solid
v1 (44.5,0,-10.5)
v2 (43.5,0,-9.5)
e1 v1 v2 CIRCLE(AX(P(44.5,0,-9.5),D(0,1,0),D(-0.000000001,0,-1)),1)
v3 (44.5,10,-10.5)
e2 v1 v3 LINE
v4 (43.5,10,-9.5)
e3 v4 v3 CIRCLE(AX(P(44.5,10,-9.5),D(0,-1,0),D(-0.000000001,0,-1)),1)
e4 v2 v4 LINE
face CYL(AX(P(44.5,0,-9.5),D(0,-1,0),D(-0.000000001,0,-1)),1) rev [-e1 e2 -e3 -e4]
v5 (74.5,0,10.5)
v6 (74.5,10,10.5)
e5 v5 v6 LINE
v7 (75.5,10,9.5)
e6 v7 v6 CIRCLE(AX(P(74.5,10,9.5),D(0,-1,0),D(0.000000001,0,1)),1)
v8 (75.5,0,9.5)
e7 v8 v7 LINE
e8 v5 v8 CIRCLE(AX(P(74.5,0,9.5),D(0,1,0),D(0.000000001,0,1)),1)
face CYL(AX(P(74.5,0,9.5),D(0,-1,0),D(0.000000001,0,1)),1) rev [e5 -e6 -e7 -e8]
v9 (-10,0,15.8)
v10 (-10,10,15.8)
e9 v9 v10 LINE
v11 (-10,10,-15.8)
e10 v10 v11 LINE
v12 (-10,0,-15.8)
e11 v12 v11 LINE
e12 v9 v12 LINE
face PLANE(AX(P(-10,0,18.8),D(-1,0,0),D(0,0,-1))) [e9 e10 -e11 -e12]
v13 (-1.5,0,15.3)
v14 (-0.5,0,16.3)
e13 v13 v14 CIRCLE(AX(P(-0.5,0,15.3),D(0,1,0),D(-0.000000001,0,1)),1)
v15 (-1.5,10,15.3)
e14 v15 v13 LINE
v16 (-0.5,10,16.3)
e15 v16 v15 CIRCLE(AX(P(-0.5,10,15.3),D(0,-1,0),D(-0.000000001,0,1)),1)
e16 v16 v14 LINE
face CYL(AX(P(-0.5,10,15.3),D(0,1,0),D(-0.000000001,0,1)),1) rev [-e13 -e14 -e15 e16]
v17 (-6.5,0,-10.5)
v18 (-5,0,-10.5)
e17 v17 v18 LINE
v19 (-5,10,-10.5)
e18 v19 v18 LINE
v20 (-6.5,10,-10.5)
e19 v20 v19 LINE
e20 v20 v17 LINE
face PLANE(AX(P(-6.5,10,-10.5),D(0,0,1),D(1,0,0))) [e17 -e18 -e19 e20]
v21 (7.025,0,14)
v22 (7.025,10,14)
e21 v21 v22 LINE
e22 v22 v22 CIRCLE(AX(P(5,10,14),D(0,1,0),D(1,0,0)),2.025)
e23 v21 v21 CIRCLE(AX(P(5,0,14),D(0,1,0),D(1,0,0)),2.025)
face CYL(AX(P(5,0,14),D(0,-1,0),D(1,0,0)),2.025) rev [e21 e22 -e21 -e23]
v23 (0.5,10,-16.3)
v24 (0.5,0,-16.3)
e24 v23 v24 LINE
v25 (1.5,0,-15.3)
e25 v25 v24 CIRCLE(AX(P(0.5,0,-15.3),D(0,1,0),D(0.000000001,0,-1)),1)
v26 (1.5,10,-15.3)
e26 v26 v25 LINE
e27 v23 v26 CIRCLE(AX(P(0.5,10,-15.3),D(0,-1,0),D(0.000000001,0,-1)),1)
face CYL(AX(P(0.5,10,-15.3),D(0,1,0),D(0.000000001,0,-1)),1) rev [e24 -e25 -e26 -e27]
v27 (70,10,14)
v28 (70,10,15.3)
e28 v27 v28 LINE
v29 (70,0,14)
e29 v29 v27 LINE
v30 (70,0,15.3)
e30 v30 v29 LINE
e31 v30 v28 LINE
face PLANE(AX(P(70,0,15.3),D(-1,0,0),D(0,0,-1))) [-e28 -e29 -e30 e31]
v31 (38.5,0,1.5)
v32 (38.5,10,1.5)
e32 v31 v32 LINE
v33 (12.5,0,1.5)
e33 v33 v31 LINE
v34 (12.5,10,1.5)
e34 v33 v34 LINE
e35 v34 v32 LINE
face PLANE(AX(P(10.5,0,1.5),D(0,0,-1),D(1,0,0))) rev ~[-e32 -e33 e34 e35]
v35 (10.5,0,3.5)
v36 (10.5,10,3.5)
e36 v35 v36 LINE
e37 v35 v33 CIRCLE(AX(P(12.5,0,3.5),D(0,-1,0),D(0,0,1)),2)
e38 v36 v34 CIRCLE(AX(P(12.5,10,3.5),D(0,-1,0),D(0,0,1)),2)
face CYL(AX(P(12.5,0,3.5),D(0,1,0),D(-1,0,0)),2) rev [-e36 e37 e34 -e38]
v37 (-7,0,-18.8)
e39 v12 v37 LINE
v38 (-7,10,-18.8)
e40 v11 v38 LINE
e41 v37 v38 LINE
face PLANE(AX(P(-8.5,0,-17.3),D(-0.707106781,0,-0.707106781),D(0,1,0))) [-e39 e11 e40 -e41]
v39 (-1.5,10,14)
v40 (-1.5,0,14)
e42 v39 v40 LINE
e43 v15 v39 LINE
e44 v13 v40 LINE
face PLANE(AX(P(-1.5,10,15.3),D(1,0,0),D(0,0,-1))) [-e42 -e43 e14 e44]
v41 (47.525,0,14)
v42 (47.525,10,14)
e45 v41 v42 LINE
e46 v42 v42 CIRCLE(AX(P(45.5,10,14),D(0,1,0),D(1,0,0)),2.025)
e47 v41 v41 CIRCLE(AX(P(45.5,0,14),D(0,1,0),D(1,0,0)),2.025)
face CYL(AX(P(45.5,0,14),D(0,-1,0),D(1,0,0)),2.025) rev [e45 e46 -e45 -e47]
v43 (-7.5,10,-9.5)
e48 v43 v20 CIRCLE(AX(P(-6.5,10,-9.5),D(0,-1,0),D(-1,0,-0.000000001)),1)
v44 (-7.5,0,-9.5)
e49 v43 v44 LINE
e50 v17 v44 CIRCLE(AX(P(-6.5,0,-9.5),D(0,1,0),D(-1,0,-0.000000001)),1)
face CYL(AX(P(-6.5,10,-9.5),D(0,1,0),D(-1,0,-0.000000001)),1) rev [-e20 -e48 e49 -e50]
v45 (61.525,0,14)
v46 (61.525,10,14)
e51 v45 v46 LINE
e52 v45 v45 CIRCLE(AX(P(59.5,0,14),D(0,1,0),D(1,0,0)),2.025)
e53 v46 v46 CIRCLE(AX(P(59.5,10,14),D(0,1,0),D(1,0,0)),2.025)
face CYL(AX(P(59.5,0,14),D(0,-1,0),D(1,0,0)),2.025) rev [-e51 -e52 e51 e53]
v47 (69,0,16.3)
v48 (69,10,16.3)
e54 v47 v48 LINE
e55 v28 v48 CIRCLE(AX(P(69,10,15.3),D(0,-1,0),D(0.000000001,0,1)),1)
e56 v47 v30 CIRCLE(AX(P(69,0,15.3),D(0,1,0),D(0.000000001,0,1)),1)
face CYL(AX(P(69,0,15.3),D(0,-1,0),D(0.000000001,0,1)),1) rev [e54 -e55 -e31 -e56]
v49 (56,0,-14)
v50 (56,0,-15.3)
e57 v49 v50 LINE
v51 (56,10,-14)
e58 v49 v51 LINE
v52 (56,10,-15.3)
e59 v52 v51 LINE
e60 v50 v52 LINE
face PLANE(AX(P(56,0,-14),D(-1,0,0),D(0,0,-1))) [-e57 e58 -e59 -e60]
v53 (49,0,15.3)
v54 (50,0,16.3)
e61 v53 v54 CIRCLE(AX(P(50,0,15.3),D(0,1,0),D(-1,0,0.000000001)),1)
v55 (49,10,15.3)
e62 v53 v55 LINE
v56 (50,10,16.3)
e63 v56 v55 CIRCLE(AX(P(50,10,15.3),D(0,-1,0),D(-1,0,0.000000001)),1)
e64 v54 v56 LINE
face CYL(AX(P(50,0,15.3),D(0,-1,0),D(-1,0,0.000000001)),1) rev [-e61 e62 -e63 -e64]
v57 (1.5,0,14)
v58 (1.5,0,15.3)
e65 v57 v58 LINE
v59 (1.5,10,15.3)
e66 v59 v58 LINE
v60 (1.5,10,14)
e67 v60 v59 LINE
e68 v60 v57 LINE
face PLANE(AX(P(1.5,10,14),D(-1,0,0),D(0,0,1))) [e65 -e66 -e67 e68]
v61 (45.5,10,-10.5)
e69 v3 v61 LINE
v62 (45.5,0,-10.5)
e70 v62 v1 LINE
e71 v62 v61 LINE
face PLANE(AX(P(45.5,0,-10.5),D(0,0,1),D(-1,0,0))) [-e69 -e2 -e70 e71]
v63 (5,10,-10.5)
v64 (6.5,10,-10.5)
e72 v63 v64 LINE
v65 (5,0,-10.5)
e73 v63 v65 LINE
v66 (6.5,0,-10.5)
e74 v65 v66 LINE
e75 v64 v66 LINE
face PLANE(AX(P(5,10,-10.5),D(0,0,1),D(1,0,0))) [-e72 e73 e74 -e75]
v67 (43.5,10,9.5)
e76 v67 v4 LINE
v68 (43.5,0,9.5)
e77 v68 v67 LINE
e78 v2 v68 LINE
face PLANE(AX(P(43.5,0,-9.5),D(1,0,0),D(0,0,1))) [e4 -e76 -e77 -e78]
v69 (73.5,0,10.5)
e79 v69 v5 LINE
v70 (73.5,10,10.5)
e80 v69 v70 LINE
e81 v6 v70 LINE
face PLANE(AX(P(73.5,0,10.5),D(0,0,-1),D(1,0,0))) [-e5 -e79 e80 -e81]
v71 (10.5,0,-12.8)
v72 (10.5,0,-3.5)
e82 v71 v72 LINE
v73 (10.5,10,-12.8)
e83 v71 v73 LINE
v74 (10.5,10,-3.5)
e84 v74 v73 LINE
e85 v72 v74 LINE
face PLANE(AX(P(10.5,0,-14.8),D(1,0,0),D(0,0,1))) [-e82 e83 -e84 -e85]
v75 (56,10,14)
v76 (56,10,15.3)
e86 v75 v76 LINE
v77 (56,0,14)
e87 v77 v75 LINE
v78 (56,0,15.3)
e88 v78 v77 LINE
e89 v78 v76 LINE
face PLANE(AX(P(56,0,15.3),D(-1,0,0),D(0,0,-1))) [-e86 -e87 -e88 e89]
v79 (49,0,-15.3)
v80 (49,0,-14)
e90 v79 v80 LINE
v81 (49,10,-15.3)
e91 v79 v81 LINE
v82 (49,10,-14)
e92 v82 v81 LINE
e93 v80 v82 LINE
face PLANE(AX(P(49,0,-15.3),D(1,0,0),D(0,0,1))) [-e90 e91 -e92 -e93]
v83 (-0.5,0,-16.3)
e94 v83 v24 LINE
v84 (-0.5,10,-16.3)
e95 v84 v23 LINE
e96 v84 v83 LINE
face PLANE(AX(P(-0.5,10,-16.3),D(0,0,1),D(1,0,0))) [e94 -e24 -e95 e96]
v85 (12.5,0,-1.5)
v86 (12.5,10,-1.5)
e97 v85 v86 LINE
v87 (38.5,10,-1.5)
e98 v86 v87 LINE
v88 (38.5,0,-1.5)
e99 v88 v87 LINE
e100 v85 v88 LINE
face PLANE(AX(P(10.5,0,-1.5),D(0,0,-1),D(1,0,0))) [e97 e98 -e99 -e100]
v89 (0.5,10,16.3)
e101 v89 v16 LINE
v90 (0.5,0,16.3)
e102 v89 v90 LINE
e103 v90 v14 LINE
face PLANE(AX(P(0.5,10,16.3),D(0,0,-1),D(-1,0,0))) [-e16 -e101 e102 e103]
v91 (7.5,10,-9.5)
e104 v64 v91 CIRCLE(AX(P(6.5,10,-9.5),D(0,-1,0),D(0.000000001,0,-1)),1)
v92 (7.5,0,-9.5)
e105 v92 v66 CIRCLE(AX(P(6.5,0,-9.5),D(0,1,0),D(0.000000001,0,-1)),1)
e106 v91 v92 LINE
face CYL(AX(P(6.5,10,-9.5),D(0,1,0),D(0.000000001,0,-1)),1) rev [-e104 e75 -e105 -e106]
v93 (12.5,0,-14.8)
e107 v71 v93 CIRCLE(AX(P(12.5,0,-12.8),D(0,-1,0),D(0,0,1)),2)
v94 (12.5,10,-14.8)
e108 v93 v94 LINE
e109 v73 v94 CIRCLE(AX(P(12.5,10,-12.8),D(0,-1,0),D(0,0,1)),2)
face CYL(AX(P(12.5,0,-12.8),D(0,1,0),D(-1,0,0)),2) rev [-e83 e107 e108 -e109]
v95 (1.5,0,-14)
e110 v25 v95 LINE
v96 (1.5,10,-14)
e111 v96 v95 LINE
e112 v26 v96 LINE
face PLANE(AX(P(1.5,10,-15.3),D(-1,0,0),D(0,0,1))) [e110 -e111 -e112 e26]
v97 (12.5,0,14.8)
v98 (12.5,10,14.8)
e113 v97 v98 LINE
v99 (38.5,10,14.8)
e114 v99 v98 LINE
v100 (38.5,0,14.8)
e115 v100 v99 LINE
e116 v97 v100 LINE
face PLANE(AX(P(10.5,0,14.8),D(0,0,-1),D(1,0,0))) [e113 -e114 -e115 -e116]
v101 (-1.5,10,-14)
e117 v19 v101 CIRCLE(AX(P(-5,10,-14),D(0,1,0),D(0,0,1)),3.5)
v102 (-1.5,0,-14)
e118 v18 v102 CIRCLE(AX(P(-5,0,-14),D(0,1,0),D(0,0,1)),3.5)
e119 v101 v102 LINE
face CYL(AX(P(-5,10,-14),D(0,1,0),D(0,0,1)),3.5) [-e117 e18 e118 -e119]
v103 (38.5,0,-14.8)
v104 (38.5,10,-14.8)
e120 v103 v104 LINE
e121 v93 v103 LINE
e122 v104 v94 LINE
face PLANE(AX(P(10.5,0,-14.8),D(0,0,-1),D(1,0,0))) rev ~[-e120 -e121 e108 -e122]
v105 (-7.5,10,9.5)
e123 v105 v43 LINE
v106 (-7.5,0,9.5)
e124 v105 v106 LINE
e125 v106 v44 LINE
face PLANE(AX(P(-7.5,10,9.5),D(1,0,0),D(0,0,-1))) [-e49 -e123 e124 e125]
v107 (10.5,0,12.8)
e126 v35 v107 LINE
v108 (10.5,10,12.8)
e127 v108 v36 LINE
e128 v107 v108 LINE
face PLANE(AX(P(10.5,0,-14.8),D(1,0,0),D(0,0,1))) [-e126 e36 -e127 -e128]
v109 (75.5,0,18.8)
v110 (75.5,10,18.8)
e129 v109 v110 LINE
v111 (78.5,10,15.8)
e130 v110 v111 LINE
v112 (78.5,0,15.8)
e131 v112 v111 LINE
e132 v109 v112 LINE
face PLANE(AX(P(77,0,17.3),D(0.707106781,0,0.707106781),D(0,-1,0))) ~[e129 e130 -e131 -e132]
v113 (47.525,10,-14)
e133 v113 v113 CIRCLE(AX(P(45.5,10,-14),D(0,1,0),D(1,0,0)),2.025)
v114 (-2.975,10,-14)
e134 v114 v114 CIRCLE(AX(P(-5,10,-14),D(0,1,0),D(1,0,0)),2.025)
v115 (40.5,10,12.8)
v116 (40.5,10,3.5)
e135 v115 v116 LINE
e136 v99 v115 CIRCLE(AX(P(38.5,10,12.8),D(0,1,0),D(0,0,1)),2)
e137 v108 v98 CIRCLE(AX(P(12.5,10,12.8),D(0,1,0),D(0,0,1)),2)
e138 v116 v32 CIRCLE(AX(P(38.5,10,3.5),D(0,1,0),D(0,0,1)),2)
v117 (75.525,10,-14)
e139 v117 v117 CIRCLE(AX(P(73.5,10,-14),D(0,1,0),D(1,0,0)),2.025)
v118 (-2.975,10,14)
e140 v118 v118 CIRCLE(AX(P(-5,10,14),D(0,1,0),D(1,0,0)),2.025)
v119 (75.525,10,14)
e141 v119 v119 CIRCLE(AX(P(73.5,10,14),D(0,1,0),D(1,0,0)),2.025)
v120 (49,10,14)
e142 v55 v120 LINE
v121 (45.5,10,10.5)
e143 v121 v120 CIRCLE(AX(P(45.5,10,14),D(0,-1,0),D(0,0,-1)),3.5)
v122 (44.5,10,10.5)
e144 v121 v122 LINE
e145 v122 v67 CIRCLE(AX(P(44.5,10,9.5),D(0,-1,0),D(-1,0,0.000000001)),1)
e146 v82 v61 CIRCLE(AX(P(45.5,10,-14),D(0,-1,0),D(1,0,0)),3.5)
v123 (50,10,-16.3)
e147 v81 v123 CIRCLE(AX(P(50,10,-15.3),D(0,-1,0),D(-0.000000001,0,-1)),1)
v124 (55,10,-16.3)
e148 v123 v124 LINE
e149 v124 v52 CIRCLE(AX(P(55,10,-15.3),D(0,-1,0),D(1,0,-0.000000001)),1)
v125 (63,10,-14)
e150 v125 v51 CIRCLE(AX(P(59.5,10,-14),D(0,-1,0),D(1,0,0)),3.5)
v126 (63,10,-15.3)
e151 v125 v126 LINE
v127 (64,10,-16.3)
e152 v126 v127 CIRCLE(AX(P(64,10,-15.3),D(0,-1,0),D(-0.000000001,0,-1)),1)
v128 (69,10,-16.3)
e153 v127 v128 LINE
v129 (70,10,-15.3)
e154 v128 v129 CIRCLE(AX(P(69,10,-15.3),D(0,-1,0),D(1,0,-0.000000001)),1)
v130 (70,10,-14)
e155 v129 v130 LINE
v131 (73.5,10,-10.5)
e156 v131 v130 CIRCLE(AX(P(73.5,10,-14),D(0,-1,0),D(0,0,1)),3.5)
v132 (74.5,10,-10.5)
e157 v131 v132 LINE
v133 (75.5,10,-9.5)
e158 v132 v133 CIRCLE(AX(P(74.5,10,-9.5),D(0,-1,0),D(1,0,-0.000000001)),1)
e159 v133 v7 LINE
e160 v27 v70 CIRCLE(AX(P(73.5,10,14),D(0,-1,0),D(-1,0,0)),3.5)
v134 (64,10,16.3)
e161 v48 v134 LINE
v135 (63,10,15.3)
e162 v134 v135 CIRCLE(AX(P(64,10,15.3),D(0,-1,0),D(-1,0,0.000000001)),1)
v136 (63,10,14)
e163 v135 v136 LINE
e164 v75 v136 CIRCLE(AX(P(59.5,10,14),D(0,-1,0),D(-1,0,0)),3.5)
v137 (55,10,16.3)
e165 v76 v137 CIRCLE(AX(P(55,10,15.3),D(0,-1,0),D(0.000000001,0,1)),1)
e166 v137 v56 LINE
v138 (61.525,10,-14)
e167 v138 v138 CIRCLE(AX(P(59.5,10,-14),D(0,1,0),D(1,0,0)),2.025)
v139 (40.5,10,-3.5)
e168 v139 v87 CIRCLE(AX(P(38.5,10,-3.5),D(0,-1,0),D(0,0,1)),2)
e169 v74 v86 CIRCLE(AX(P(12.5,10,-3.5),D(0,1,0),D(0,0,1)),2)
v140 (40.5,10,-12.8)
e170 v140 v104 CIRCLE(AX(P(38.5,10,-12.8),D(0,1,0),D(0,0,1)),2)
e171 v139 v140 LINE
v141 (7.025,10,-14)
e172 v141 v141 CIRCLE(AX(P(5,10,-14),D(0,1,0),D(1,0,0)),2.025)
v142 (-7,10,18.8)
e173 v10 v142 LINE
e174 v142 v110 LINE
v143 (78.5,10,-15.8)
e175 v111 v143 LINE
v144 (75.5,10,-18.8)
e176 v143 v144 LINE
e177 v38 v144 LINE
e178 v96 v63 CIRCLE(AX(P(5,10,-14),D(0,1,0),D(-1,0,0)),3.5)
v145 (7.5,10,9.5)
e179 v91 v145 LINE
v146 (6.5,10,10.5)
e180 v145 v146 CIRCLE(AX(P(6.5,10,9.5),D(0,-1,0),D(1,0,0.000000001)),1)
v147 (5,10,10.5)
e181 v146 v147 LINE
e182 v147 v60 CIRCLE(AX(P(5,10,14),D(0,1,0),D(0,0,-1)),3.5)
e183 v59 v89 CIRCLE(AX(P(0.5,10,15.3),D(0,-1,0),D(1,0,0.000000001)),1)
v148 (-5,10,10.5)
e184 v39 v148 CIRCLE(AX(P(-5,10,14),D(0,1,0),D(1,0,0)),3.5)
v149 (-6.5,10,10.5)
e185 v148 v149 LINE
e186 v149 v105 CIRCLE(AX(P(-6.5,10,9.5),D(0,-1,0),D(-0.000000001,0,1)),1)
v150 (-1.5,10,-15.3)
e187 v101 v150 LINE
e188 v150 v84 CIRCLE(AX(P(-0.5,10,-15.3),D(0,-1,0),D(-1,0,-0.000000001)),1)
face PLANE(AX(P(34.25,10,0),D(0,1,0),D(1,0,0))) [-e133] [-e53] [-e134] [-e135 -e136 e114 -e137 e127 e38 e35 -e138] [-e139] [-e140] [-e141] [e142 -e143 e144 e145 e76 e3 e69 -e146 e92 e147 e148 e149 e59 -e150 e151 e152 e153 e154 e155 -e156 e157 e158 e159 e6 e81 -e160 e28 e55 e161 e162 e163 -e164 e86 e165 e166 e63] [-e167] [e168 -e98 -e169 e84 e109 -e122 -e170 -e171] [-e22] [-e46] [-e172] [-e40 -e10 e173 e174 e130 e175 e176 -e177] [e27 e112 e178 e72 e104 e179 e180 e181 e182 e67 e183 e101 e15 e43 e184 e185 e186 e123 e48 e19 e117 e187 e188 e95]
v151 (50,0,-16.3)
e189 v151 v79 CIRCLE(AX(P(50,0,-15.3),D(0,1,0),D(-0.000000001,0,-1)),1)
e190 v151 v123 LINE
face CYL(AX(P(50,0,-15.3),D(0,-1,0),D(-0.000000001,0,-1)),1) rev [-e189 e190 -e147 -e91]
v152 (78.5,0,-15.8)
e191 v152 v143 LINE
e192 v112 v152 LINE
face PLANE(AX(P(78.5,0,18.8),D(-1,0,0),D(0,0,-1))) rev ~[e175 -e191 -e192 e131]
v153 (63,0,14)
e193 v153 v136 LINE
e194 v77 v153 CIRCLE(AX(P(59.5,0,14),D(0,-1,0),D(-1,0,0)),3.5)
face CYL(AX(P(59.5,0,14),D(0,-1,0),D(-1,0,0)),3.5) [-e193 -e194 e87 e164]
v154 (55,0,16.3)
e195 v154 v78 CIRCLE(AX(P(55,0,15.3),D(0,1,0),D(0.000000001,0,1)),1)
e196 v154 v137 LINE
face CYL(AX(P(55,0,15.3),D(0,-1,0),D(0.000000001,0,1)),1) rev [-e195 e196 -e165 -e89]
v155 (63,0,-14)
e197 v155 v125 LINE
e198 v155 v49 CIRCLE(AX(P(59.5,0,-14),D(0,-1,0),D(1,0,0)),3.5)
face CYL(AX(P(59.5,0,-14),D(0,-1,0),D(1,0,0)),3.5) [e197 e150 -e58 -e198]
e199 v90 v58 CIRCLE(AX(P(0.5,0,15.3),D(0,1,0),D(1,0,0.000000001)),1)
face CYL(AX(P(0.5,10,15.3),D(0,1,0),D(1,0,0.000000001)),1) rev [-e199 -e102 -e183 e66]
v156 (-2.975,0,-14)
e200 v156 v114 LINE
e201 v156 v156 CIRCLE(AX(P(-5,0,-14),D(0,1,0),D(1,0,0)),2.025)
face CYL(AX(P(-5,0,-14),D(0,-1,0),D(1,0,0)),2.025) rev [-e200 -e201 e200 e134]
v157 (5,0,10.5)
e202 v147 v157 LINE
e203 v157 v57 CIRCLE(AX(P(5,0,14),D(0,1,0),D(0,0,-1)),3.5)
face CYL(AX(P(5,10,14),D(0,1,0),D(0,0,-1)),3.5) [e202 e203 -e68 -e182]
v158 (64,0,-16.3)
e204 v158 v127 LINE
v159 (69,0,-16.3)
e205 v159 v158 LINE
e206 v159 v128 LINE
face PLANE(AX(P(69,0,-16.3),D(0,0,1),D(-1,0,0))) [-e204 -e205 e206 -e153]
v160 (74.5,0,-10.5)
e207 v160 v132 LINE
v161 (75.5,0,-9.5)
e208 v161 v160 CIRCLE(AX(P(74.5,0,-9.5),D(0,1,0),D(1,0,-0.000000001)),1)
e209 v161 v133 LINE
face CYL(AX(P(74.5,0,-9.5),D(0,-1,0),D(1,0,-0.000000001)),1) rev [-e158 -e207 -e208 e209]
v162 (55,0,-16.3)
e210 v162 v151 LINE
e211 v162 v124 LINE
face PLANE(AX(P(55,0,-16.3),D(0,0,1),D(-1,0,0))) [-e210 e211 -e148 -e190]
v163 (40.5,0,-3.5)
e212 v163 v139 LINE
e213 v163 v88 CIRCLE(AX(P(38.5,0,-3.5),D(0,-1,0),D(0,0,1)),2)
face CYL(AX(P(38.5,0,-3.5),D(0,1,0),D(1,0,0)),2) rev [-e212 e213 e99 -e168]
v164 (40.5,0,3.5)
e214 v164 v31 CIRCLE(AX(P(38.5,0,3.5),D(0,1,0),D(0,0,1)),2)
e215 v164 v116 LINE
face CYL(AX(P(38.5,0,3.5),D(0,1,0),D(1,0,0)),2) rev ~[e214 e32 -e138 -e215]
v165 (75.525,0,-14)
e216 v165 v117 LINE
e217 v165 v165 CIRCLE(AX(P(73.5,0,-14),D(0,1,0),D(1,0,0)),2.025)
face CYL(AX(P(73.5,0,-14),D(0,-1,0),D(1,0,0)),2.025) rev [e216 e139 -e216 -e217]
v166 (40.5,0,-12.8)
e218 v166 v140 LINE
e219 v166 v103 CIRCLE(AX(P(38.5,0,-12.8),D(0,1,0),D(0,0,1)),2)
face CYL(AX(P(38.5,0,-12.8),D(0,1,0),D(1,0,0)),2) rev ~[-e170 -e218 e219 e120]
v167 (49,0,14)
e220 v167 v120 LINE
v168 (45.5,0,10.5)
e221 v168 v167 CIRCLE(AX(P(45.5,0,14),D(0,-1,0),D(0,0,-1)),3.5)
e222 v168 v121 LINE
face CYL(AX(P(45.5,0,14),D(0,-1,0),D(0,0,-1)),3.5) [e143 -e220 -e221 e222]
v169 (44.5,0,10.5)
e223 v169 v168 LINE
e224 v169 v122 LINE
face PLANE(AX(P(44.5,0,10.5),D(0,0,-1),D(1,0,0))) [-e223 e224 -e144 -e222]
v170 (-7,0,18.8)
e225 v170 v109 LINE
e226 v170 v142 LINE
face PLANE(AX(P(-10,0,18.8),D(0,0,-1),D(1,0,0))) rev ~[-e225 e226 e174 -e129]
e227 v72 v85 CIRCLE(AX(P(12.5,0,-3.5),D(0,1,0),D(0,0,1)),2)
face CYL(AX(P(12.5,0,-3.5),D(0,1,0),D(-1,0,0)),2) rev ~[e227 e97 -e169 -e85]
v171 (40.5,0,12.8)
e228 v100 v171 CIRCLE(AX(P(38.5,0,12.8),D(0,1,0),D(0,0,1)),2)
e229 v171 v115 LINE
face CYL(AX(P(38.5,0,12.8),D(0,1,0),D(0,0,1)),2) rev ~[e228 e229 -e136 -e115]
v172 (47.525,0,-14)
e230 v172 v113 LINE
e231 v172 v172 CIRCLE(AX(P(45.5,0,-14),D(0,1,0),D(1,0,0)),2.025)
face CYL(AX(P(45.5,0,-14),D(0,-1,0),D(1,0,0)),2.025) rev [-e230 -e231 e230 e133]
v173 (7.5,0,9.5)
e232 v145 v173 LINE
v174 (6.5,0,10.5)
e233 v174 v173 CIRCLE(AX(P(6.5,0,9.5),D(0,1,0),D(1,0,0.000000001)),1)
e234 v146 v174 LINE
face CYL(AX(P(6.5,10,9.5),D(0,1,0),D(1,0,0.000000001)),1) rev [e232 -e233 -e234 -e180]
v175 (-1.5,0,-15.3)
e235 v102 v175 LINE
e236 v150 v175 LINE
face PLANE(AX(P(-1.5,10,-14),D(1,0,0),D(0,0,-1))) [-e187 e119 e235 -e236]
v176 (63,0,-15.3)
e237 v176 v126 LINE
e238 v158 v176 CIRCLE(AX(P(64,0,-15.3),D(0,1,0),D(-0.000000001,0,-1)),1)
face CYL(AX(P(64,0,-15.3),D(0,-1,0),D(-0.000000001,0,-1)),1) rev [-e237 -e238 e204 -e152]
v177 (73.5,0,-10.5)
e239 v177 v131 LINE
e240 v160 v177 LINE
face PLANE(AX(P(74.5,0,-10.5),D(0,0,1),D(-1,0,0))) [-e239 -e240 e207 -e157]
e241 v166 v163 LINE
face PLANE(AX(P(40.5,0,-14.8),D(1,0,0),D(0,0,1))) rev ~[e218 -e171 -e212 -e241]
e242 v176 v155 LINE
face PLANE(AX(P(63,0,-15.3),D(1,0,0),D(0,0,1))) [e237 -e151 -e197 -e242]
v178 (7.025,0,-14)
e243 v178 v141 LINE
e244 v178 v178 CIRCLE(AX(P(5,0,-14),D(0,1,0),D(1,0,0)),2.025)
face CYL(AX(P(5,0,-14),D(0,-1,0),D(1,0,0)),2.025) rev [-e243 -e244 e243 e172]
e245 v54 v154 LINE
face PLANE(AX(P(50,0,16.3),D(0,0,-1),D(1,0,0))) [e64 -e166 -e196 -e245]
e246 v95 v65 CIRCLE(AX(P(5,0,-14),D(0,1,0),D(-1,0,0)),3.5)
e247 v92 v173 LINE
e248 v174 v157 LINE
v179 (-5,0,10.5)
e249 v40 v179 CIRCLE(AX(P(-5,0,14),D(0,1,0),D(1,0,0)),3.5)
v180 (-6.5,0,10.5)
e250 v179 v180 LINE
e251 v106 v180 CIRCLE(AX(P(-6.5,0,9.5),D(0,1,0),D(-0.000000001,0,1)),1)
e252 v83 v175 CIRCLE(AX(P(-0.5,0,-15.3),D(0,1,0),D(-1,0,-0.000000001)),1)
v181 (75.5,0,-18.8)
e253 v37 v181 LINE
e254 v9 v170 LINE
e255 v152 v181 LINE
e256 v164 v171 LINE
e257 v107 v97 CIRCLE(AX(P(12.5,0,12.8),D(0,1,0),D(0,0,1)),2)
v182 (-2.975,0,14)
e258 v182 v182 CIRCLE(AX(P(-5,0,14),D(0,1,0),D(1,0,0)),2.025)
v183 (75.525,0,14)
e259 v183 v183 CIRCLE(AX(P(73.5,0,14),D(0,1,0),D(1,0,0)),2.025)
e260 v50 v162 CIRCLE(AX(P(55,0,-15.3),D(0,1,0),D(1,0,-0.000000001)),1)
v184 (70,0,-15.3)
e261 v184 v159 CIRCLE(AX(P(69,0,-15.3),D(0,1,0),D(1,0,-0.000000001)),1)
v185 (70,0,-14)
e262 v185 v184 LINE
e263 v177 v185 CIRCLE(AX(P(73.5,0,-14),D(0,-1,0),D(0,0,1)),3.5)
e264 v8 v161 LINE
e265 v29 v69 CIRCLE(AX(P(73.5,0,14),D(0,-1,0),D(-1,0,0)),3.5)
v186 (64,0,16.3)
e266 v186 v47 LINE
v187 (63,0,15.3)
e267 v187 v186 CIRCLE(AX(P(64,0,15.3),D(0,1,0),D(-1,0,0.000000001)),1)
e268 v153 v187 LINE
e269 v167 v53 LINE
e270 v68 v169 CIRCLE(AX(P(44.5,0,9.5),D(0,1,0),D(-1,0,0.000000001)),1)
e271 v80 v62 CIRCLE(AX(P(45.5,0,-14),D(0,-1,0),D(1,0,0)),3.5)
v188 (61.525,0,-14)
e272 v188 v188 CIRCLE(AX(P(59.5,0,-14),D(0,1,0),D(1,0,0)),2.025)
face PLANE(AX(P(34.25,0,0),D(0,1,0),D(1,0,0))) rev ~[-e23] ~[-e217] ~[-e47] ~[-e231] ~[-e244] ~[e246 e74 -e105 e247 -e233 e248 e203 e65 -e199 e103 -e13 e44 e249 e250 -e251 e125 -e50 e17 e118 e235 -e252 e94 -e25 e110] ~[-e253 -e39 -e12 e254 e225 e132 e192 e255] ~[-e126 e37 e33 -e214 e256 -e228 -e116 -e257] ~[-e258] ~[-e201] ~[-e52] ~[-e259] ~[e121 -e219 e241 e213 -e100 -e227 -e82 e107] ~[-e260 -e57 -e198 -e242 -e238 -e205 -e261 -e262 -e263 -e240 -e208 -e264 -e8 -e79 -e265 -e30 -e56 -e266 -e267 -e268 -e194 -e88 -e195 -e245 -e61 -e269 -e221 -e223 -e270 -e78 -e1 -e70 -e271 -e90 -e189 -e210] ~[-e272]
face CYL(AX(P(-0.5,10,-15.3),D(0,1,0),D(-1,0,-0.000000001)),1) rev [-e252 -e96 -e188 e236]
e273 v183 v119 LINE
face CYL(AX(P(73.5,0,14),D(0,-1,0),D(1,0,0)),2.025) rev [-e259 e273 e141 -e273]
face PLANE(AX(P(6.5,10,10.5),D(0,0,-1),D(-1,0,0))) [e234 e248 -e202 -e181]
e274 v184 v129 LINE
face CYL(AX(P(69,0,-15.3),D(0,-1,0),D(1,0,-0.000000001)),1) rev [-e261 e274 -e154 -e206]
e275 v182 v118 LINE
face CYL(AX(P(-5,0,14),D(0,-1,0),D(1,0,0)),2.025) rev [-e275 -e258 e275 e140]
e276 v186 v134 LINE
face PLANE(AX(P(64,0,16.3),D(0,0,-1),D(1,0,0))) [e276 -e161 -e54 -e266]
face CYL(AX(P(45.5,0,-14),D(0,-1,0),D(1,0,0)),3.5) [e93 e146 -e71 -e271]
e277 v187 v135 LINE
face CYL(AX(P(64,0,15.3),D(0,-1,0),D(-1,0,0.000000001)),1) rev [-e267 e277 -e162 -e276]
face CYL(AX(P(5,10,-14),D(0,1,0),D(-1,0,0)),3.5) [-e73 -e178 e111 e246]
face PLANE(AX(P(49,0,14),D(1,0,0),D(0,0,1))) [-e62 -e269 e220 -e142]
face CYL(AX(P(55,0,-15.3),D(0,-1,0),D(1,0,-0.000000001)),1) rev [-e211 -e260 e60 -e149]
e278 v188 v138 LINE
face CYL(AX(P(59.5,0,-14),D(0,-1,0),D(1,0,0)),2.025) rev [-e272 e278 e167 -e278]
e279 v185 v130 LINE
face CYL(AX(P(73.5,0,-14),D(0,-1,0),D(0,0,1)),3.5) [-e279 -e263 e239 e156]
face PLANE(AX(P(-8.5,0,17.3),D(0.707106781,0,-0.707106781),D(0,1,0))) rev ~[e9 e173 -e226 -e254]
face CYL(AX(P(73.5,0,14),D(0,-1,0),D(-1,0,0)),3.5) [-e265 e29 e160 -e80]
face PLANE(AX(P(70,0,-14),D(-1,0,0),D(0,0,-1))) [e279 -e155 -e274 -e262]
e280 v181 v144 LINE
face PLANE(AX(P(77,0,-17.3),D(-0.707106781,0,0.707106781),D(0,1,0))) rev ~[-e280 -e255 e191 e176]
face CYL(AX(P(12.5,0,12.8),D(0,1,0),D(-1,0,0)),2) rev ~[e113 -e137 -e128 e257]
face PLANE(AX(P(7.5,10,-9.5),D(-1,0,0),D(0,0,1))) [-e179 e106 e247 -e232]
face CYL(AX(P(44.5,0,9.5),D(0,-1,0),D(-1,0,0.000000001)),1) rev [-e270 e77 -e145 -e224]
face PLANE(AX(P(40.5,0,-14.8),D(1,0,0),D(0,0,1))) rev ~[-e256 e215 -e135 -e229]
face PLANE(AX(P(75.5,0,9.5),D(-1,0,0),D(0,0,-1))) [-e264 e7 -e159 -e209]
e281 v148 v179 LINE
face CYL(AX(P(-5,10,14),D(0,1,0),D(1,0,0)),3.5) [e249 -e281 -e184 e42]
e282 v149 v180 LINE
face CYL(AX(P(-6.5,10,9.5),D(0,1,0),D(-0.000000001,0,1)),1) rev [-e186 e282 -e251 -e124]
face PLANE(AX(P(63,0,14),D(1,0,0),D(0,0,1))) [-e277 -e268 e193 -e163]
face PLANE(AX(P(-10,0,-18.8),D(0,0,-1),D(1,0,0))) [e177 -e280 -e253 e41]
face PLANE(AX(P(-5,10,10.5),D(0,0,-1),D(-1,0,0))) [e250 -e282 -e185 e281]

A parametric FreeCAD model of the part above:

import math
import FreeCAD as App
import Part
import Sketcher


def edges_at(feature, points):
    """Names of the edges that pass closest to the given points."""
    edges = feature.Shape.Edges
    near = lambda p: min(range(len(edges)), key=lambda i: edges[i].distToShape(Part.Vertex(*p))[0])
    return sorted({f"Edge{near(p) + 1}" for p in points})

doc = App.newDocument("Part")
body = doc.addObject("PartDesign::Body", "Body")

sketch1 = body.newObject("Sketcher::SketchObject", "Sketch")
sketch1.AttachmentSupport = (doc.getObject("XZ_Plane"), [""])
sketch1.MapMode = "FlatFace"
sketch1.addGeometry(Part.LineSegment(App.Vector(-10, -18.8, 0), App.Vector(-10, 18.8, 0)), False)
sketch1.addGeometry(Part.LineSegment(App.Vector(-10, 18.8, 0), App.Vector(78.5, 18.8, 0)), False)
sketch1.addGeometry(Part.LineSegment(App.Vector(78.5, 18.8, 0), App.Vector(78.5, -18.8, 0)), False)
sketch1.addGeometry(Part.LineSegment(App.Vector(78.5, -18.8, 0), App.Vector(-10, -18.8, 0)), False)
sketch1.addGeometry(Part.Circle(App.Vector(-5, 14, 0), App.Vector(0, 0, 1), 2.025), False)
sketch1.addGeometry(Part.Circle(App.Vector(5, 14, 0), App.Vector(0, 0, 1), 2.025), False)
sketch1.addGeometry(Part.Circle(App.Vector(45.5, 14, 0), App.Vector(0, 0, 1), 2.025), False)
sketch1.addGeometry(Part.Circle(App.Vector(59.5, 14, 0), App.Vector(0, 0, 1), 2.025), False)
sketch1.addGeometry(Part.Circle(App.Vector(73.5, 14, 0), App.Vector(0, 0, 1), 2.025), False)
sketch1.addGeometry(Part.Circle(App.Vector(-5, -14, 0), App.Vector(0, 0, 1), 2.025), False)
sketch1.addGeometry(Part.Circle(App.Vector(5, -14, 0), App.Vector(0, 0, 1), 2.025), False)
sketch1.addGeometry(Part.Circle(App.Vector(45.5, -14, 0), App.Vector(0, 0, 1), 2.025), False)
sketch1.addGeometry(Part.Circle(App.Vector(59.5, -14, 0), App.Vector(0, 0, 1), 2.025), False)
sketch1.addGeometry(Part.Circle(App.Vector(73.5, -14, 0), App.Vector(0, 0, 1), 2.025), False)
sketch1.addConstraint(Sketcher.Constraint("Coincident", 0, 2, 1, 1))
sketch1.addConstraint(Sketcher.Constraint("Coincident", 1, 2, 2, 1))
sketch1.addConstraint(Sketcher.Constraint("Coincident", 2, 2, 3, 1))
sketch1.addConstraint(Sketcher.Constraint("Coincident", 3, 2, 0, 1))
sketch1.addConstraint(Sketcher.Constraint("Vertical", 0))
sketch1.addConstraint(Sketcher.Constraint("Horizontal", 1))
sketch1.addConstraint(Sketcher.Constraint("Vertical", 2))
sketch1.addConstraint(Sketcher.Constraint("Horizontal", 3))
sketch1.addConstraint(Sketcher.Constraint("Equal", 4, 5))
sketch1.addConstraint(Sketcher.Constraint("Equal", 5, 6))
sketch1.addConstraint(Sketcher.Constraint("Equal", 6, 7))
sketch1.addConstraint(Sketcher.Constraint("Equal", 7, 8))
sketch1.addConstraint(Sketcher.Constraint("Equal", 8, 9))
sketch1.addConstraint(Sketcher.Constraint("Equal", 9, 10))
sketch1.addConstraint(Sketcher.Constraint("Equal", 10, 11))
sketch1.addConstraint(Sketcher.Constraint("Equal", 11, 12))
sketch1.addConstraint(Sketcher.Constraint("Equal", 12, 13))
sketch1.addConstraint(Sketcher.Constraint("Symmetric", 5, 3, 9, 3, -1, 1))
sketch1.addConstraint(Sketcher.Constraint("Symmetric", 4, 3, 10, 3, -1, 1))
sketch1.addConstraint(Sketcher.Constraint("Symmetric", 4, 3, 5, 3, -2))
sketch1.addConstraint(Sketcher.Constraint("Symmetric", 6, 3, 11, 3, -1))
sketch1.addConstraint(Sketcher.Constraint("Symmetric", 7, 3, 12, 3, -1))
sketch1.addConstraint(Sketcher.Constraint("Symmetric", 8, 3, 13, 3, -1))
sketch1.addConstraint(Sketcher.Constraint("Horizontal", 5, 3, 6, 3))
sketch1.addConstraint(Sketcher.Constraint("Horizontal", 6, 3, 7, 3))
sketch1.addConstraint(Sketcher.Constraint("Horizontal", 7, 3, 8, 3))
sketch1.addConstraint(Sketcher.Constraint("Diameter", 4, 4.05))
sketch1.addConstraint(Sketcher.Constraint("DistanceX", 1, 1, 1, 2, 88.5))
sketch1.addConstraint(Sketcher.Constraint("DistanceY", 0, 1, 0, 2, 37.6))
sketch1.addConstraint(Sketcher.Constraint("DistanceX", 4, 3, -1, 1, 5.0))
sketch1.addConstraint(Sketcher.Constraint("DistanceY", -1, 1, 4, 3, 14.0))
sketch1.addConstraint(Sketcher.Constraint("DistanceX", 0, 2, -1, 1, 10.0))
sketch1.addConstraint(Sketcher.Constraint("DistanceX", 6, 3, 7, 3, 14.0))
sketch1.addConstraint(Sketcher.Constraint("DistanceX", 7, 3, 8, 3, 14.0))
sketch1.addConstraint(Sketcher.Constraint("DistanceX", 8, 3, 1, 2, 5.0))
sketch1.addConstraint(Sketcher.Constraint("DistanceY", -1, 1, 0, 2, 18.8))
pad1 = body.newObject("PartDesign::Pad", "Pad")
pad1.Profile = sketch1
pad1.Length = 10
pad1.Reversed = True

sketch2 = body.newObject("Sketcher::SketchObject", "Sketch001")
sketch2.AttachmentSupport = (doc.getObject("XZ_Plane"), [""])
sketch2.MapMode = "FlatFace"
sketch2.AttachmentOffset = App.Placement(App.Vector(0, 0, -10), App.Rotation())
sketch2.addGeometry(Part.LineSegment(App.Vector(-7.5, -9.5, 0), App.Vector(-7.5, 9.5, 0)), False)
sketch2.addGeometry(Part.ArcOfCircle(Part.Circle(App.Vector(-6.5, 9.5, 0), App.Vector(0, 0, 1), 1), math.radians(90), math.radians(180)), False)
sketch2.addGeometry(Part.LineSegment(App.Vector(-6.5, 10.5, 0), App.Vector(-5, 10.5, 0)), False)
sketch2.addGeometry(Part.ArcOfCircle(Part.Circle(App.Vector(-5, 14, 0), App.Vector(0, 0, 1), 3.5), math.radians(-90), math.radians(0)), False)
sketch2.addGeometry(Part.LineSegment(App.Vector(-1.5, 14, 0), App.Vector(-1.5, 15.3, 0)), False)
sketch2.addGeometry(Part.ArcOfCircle(Part.Circle(App.Vector(-0.5, 15.3, 0), App.Vector(0, 0, 1), 1), math.radians(90), math.radians(180)), False)
sketch2.addGeometry(Part.LineSegment(App.Vector(-0.5, 16.3, 0), App.Vector(0.5, 16.3, 0)), False)
sketch2.addGeometry(Part.ArcOfCircle(Part.Circle(App.Vector(0.5, 15.3, 0), App.Vector(0, 0, 1), 1), math.radians(0), math.radians(90)), False)
sketch2.addGeometry(Part.LineSegment(App.Vector(1.5, 15.3, 0), App.Vector(1.5, 14, 0)), False)
sketch2.addGeometry(Part.ArcOfCircle(Part.Circle(App.Vector(5, 14, 0), App.Vector(0, 0, 1), 3.5), math.radians(-180), math.radians(-90)), False)
sketch2.addGeometry(Part.LineSegment(App.Vector(5, 10.5, 0), App.Vector(6.5, 10.5, 0)), False)
sketch2.addGeometry(Part.ArcOfCircle(Part.Circle(App.Vector(6.5, 9.5, 0), App.Vector(0, 0, 1), 1), math.radians(0), math.radians(90)), False)
sketch2.addGeometry(Part.LineSegment(App.Vector(7.5, 9.5, 0), App.Vector(7.5, -9.5, 0)), False)
sketch2.addGeometry(Part.ArcOfCircle(Part.Circle(App.Vector(6.5, -9.5, 0), App.Vector(0, 0, 1), 1), math.radians(-90), math.radians(0)), False)
sketch2.addGeometry(Part.LineSegment(App.Vector(6.5, -10.5, 0), App.Vector(5, -10.5, 0)), False)
sketch2.addGeometry(Part.ArcOfCircle(Part.Circle(App.Vector(5, -14, 0), App.Vector(0, 0, 1), 3.5), math.radians(90), math.radians(180)), False)
sketch2.addGeometry(Part.LineSegment(App.Vector(1.5, -14, 0), App.Vector(1.5, -15.3, 0)), False)
sketch2.addGeometry(Part.ArcOfCircle(Part.Circle(App.Vector(0.5, -15.3, 0), App.Vector(0, 0, 1), 1), math.radians(-90), math.radians(0)), False)
sketch2.addGeometry(Part.LineSegment(App.Vector(0.5, -16.3, 0), App.Vector(-0.5, -16.3, 0)), False)
sketch2.addGeometry(Part.ArcOfCircle(Part.Circle(App.Vector(-0.5, -15.3, 0), App.Vector(0, 0, 1), 1), math.radians(-180), math.radians(-90)), False)
sketch2.addGeometry(Part.LineSegment(App.Vector(-1.5, -15.3, 0), App.Vector(-1.5, -14, 0)), False)
sketch2.addGeometry(Part.ArcOfCircle(Part.Circle(App.Vector(-5, -14, 0), App.Vector(0, 0, 1), 3.5), math.radians(0), math.radians(90)), False)
sketch2.addGeometry(Part.LineSegment(App.Vector(-5, -10.5, 0), App.Vector(-6.5, -10.5, 0)), False)
sketch2.addGeometry(Part.ArcOfCircle(Part.Circle(App.Vector(-6.5, -9.5, 0), App.Vector(0, 0, 1), 1), math.radians(-180), math.radians(-90)), False)
sketch2.addConstraint(Sketcher.Constraint("Tangent", 0, 2, 1, 2))
sketch2.addConstraint(Sketcher.Constraint("Tangent", 1, 1, 2, 1))
sketch2.addConstraint(Sketcher.Constraint("Tangent", 2, 2, 3, 1))
sketch2.addConstraint(Sketcher.Constraint("Tangent", 3, 2, 4, 1))
sketch2.addConstraint(Sketcher.Constraint("Tangent", 4, 2, 5, 2))
sketch2.addConstraint(Sketcher.Constraint("Tangent", 5, 1, 6, 1))
sketch2.addConstraint(Sketcher.Constraint("Tangent", 6, 2, 7, 2))
sketch2.addConstraint(Sketcher.Constraint("Tangent", 7, 1, 8, 1))
sketch2.addConstraint(Sketcher.Constraint("Tangent", 8, 2, 9, 1))
sketch2.addConstraint(Sketcher.Constraint("Tangent", 9, 2, 10, 1))
sketch2.addConstraint(Sketcher.Constraint("Tangent", 10, 2, 11, 2))
sketch2.addConstraint(Sketcher.Constraint("Tangent", 11, 1, 12, 1))
sketch2.addConstraint(Sketcher.Constraint("Tangent", 12, 2, 13, 2))
sketch2.addConstraint(Sketcher.Constraint("Tangent", 13, 1, 14, 1))
sketch2.addConstraint(Sketcher.Constraint("Tangent", 14, 2, 15, 1))
sketch2.addConstraint(Sketcher.Constraint("Tangent", 15, 2, 16, 1))
sketch2.addConstraint(Sketcher.Constraint("Tangent", 16, 2, 17, 2))
sketch2.addConstraint(Sketcher.Constraint("Tangent", 17, 1, 18, 1))
sketch2.addConstraint(Sketcher.Constraint("Tangent", 18, 2, 19, 2))
sketch2.addConstraint(Sketcher.Constraint("Tangent", 19, 1, 20, 1))
sketch2.addConstraint(Sketcher.Constraint("Tangent", 20, 2, 21, 1))
sketch2.addConstraint(Sketcher.Constraint("Tangent", 21, 2, 22, 1))
sketch2.addConstraint(Sketcher.Constraint("Tangent", 22, 2, 23, 2))
sketch2.addConstraint(Sketcher.Constraint("Tangent", 23, 1, 0, 1))
sketch2.addConstraint(Sketcher.Constraint("Vertical", 0))
sketch2.addConstraint(Sketcher.Constraint("Horizontal", 2))
sketch2.addConstraint(Sketcher.Constraint("Vertical", 4))
sketch2.addConstraint(Sketcher.Constraint("Horizontal", 6))
sketch2.addConstraint(Sketcher.Constraint("Vertical", 8))
sketch2.addConstraint(Sketcher.Constraint("Horizontal", 10))
sketch2.addConstraint(Sketcher.Constraint("Vertical", 12))
sketch2.addConstraint(Sketcher.Constraint("Horizontal", 14))
sketch2.addConstraint(Sketcher.Constraint("Vertical", 16))
sketch2.addConstraint(Sketcher.Constraint("Horizontal", 18))
sketch2.addConstraint(Sketcher.Constraint("Vertical", 20))
sketch2.addConstraint(Sketcher.Constraint("Horizontal", 22))
sketch2.addConstraint(Sketcher.Constraint("Equal", 1, 5))
sketch2.addConstraint(Sketcher.Constraint("Equal", 5, 7))
sketch2.addConstraint(Sketcher.Constraint("Equal", 3, 9))
sketch2.addConstraint(Sketcher.Constraint("Equal", 7, 11))
sketch2.addConstraint(Sketcher.Constraint("Equal", 11, 13))
sketch2.addConstraint(Sketcher.Constraint("Equal", 9, 15))
sketch2.addConstraint(Sketcher.Constraint("Equal", 13, 17))
sketch2.addConstraint(Sketcher.Constraint("Equal", 17, 19))
sketch2.addConstraint(Sketcher.Constraint("Equal", 15, 21))
sketch2.addConstraint(Sketcher.Constraint("Equal", 19, 23))
sketch2.addConstraint(Sketcher.Constraint("Symmetric", 1, 3, 13, 3, -1, 1))
sketch2.addConstraint(Sketcher.Constraint("Symmetric", 5, 3, 17, 3, -1, 1))
sketch2.addConstraint(Sketcher.Constraint("Symmetric", 9, 3, 21, 3, -1, 1))
sketch2.addConstraint(Sketcher.Constraint("Symmetric", 3, 3, 9, 3, -2))
sketch2.addConstraint(Sketcher.Constraint("Radius", 1, 1.0))
sketch2.addConstraint(Sketcher.Constraint("Radius", 3, 3.5))
sketch2.addConstraint(Sketcher.Constraint("DistanceX", 6, 1, 6, 2, 1.0))
sketch2.addConstraint(Sketcher.Constraint("DistanceY", 0, 1, 0, 2, 19.0))
sketch2.addConstraint(Sketcher.Constraint("DistanceX", 2, 1, 2, 2, 1.5))
sketch2.addConstraint(Sketcher.Constraint("DistanceY", 4, 1, 4, 2, 1.3))
pocket1 = body.newObject("PartDesign::Pocket", "Pocket")
pocket1.Profile = sketch2
pocket1.Type = "ThroughAll"
pocket1.Reversed = True

sketch3 = body.newObject("Sketcher::SketchObject", "Sketch002")
sketch3.AttachmentSupport = (doc.getObject("XZ_Plane"), [""])
sketch3.MapMode = "FlatFace"
sketch3.addGeometry(Part.LineSegment(App.Vector(43.5, 9.5, 0), App.Vector(43.5, -9.5, 0)), False)
sketch3.addGeometry(Part.ArcOfCircle(Part.Circle(App.Vector(44.5, -9.5, 0), App.Vector(0, 0, 1), 1), math.radians(-180), math.radians(-90)), False)
sketch3.addGeometry(Part.LineSegment(App.Vector(44.5, -10.5, 0), App.Vector(45.5, -10.5, 0)), False)
sketch3.addGeometry(Part.ArcOfCircle(Part.Circle(App.Vector(45.5, -14, 0), App.Vector(0, 0, 1), 3.5), math.radians(0), math.radians(90)), False)
sketch3.addGeometry(Part.LineSegment(App.Vector(49, -14, 0), App.Vector(49, -15.3, 0)), False)
sketch3.addGeometry(Part.ArcOfCircle(Part.Circle(App.Vector(50, -15.3, 0), App.Vector(0, 0, 1), 1), math.radians(-180), math.radians(-90)), False)
sketch3.addGeometry(Part.LineSegment(App.Vector(50, -16.3, 0), App.Vector(55, -16.3, 0)), False)
sketch3.addGeometry(Part.ArcOfCircle(Part.Circle(App.Vector(55, -15.3, 0), App.Vector(0, 0, 1), 1), math.radians(-90), math.radians(0)), False)
sketch3.addGeometry(Part.LineSegment(App.Vector(56, -15.3, 0), App.Vector(56, -14, 0)), False)
sketch3.addGeometry(Part.ArcOfCircle(Part.Circle(App.Vector(59.5, -14, 0), App.Vector(0, 0, 1), 3.5), math.radians(0), math.radians(180)), False)
sketch3.addGeometry(Part.LineSegment(App.Vector(63, -14, 0), App.Vector(63, -15.3, 0)), False)
sketch3.addGeometry(Part.ArcOfCircle(Part.Circle(App.Vector(64, -15.3, 0), App.Vector(0, 0, 1), 1), math.radians(-180), math.radians(-90)), False)
sketch3.addGeometry(Part.LineSegment(App.Vector(64, -16.3, 0), App.Vector(69, -16.3, 0)), False)
sketch3.addGeometry(Part.ArcOfCircle(Part.Circle(App.Vector(69, -15.3, 0), App.Vector(0, 0, 1), 1), math.radians(-90), math.radians(0)), False)
sketch3.addGeometry(Part.LineSegment(App.Vector(70, -15.3, 0), App.Vector(70, -14, 0)), False)
sketch3.addGeometry(Part.ArcOfCircle(Part.Circle(App.Vector(73.5, -14, 0), App.Vector(0, 0, 1), 3.5), math.radians(90), math.radians(180)), False)
sketch3.addGeometry(Part.LineSegment(App.Vector(73.5, -10.5, 0), App.Vector(74.5, -10.5, 0)), False)
sketch3.addGeometry(Part.ArcOfCircle(Part.Circle(App.Vector(74.5, -9.5, 0), App.Vector(0, 0, 1), 1), math.radians(-90), math.radians(0)), False)
sketch3.addGeometry(Part.LineSegment(App.Vector(75.5, -9.5, 0), App.Vector(75.5, 9.5, 0)), False)
sketch3.addGeometry(Part.ArcOfCircle(Part.Circle(App.Vector(74.5, 9.5, 0), App.Vector(0, 0, 1), 1), math.radians(0), math.radians(90)), False)
sketch3.addGeometry(Part.LineSegment(App.Vector(74.5, 10.5, 0), App.Vector(73.5, 10.5, 0)), False)
sketch3.addGeometry(Part.ArcOfCircle(Part.Circle(App.Vector(73.5, 14, 0), App.Vector(0, 0, 1), 3.5), math.radians(-180), math.radians(-90)), False)
sketch3.addGeometry(Part.LineSegment(App.Vector(70, 14, 0), App.Vector(70, 15.3, 0)), False)
sketch3.addGeometry(Part.ArcOfCircle(Part.Circle(App.Vector(69, 15.3, 0), App.Vector(0, 0, 1), 1), math.radians(0), math.radians(90)), False)
sketch3.addGeometry(Part.LineSegment(App.Vector(69, 16.3, 0), App.Vector(64, 16.3, 0)), False)
sketch3.addGeometry(Part.ArcOfCircle(Part.Circle(App.Vector(64, 15.3, 0), App.Vector(0, 0, 1), 1), math.radians(90), math.radians(180)), False)
sketch3.addGeometry(Part.LineSegment(App.Vector(63, 15.3, 0), App.Vector(63, 14, 0)), False)
sketch3.addGeometry(Part.ArcOfCircle(Part.Circle(App.Vector(59.5, 14, 0), App.Vector(0, 0, 1), 3.5), math.radians(180), math.radians(360)), False)
sketch3.addGeometry(Part.LineSegment(App.Vector(56, 14, 0), App.Vector(56, 15.3, 0)), False)
sketch3.addGeometry(Part.ArcOfCircle(Part.Circle(App.Vector(55, 15.3, 0), App.Vector(0, 0, 1), 1), math.radians(0), math.radians(90)), False)
sketch3.addGeometry(Part.LineSegment(App.Vector(55, 16.3, 0), App.Vector(50, 16.3, 0)), False)
sketch3.addGeometry(Part.ArcOfCircle(Part.Circle(App.Vector(50, 15.3, 0), App.Vector(0, 0, 1), 1), math.radians(90), math.radians(180)), False)
sketch3.addGeometry(Part.LineSegment(App.Vector(49, 15.3, 0), App.Vector(49, 14, 0)), False)
sketch3.addGeometry(Part.ArcOfCircle(Part.Circle(App.Vector(45.5, 14, 0), App.Vector(0, 0, 1), 3.5), math.radians(-90), math.radians(0)), False)
sketch3.addGeometry(Part.LineSegment(App.Vector(45.5, 10.5, 0), App.Vector(44.5, 10.5, 0)), False)
sketch3.addGeometry(Part.ArcOfCircle(Part.Circle(App.Vector(44.5, 9.5, 0), App.Vector(0, 0, 1), 1), math.radians(90), math.radians(180)), False)
sketch3.addConstraint(Sketcher.Constraint("Tangent", 0, 2, 1, 1))
sketch3.addConstraint(Sketcher.Constraint("Tangent", 1, 2, 2, 1))
sketch3.addConstraint(Sketcher.Constraint("Tangent", 2, 2, 3, 2))
sketch3.addConstraint(Sketcher.Constraint("Tangent", 3, 1, 4, 1))
sketch3.addConstraint(Sketcher.Constraint("Tangent", 4, 2, 5, 1))
sketch3.addConstraint(Sketcher.Constraint("Tangent", 5, 2, 6, 1))
sketch3.addConstraint(Sketcher.Constraint("Tangent", 6, 2, 7, 1))
sketch3.addConstraint(Sketcher.Constraint("Tangent", 7, 2, 8, 1))
sketch3.addConstraint(Sketcher.Constraint("Tangent", 8, 2, 9, 2))
sketch3.addConstraint(Sketcher.Constraint("Tangent", 9, 1, 10, 1))
sketch3.addConstraint(Sketcher.Constraint("Tangent", 10, 2, 11, 1))
sketch3.addConstraint(Sketcher.Constraint("Tangent", 11, 2, 12, 1))
sketch3.addConstraint(Sketcher.Constraint("Tangent", 12, 2, 13, 1))
sketch3.addConstraint(Sketcher.Constraint("Tangent", 13, 2, 14, 1))
sketch3.addConstraint(Sketcher.Constraint("Tangent", 14, 2, 15, 2))
sketch3.addConstraint(Sketcher.Constraint("Tangent", 15, 1, 16, 1))
sketch3.addConstraint(Sketcher.Constraint("Tangent", 16, 2, 17, 1))
sketch3.addConstraint(Sketcher.Constraint("Tangent", 17, 2, 18, 1))
sketch3.addConstraint(Sketcher.Constraint("Tangent", 18, 2, 19, 1))
sketch3.addConstraint(Sketcher.Constraint("Tangent", 19, 2, 20, 1))
sketch3.addConstraint(Sketcher.Constraint("Tangent", 20, 2, 21, 2))
sketch3.addConstraint(Sketcher.Constraint("Tangent", 21, 1, 22, 1))
sketch3.addConstraint(Sketcher.Constraint("Tangent", 22, 2, 23, 1))
sketch3.addConstraint(Sketcher.Constraint("Tangent", 23, 2, 24, 1))
sketch3.addConstraint(Sketcher.Constraint("Tangent", 24, 2, 25, 1))
sketch3.addConstraint(Sketcher.Constraint("Tangent", 25, 2, 26, 1))
sketch3.addConstraint(Sketcher.Constraint("Tangent", 26, 2, 27, 2))
sketch3.addConstraint(Sketcher.Constraint("Tangent", 27, 1, 28, 1))
sketch3.addConstraint(Sketcher.Constraint("Tangent", 28, 2, 29, 1))
sketch3.addConstraint(Sketcher.Constraint("Tangent", 29, 2, 30, 1))
sketch3.addConstraint(Sketcher.Constraint("Tangent", 30, 2, 31, 1))
sketch3.addConstraint(Sketcher.Constraint("Tangent", 31, 2, 32, 1))
sketch3.addConstraint(Sketcher.Constraint("Tangent", 32, 2, 33, 2))
sketch3.addConstraint(Sketcher.Constraint("Tangent", 33, 1, 34, 1))
sketch3.addConstraint(Sketcher.Constraint("Tangent", 34, 2, 35, 1))
sketch3.addConstraint(Sketcher.Constraint("Tangent", 35, 2, 0, 1))
sketch3.addConstraint(Sketcher.Constraint("Vertical", 0))
sketch3.addConstraint(Sketcher.Constraint("Horizontal", 2))
sketch3.addConstraint(Sketcher.Constraint("Vertical", 4))
sketch3.addConstraint(Sketcher.Constraint("Horizontal", 6))
sketch3.addConstraint(Sketcher.Constraint("Vertical", 8))
sketch3.addConstraint(Sketcher.Constraint("Vertical", 10))
sketch3.addConstraint(Sketcher.Constraint("Horizontal", 12))
sketch3.addConstraint(Sketcher.Constraint("Vertical", 14))
sketch3.addConstraint(Sketcher.Constraint("Horizontal", 16))
sketch3.addConstraint(Sketcher.Constraint("Vertical", 18))
sketch3.addConstraint(Sketcher.Constraint("Horizontal", 20))
sketch3.addConstraint(Sketcher.Constraint("Vertical", 22))
sketch3.addConstraint(Sketcher.Constraint("Horizontal", 24))
sketch3.addConstraint(Sketcher.Constraint("Vertical", 26))
sketch3.addConstraint(Sketcher.Constraint("Vertical", 28))
sketch3.addConstraint(Sketcher.Constraint("Horizontal", 30))
sketch3.addConstraint(Sketcher.Constraint("Vertical", 32))
sketch3.addConstraint(Sketcher.Constraint("Horizontal", 34))
sketch3.addConstraint(Sketcher.Constraint("Equal", 1, 5))
sketch3.addConstraint(Sketcher.Constraint("Equal", 5, 7))
sketch3.addConstraint(Sketcher.Constraint("Equal", 3, 9))
sketch3.addConstraint(Sketcher.Constraint("Equal", 7, 11))
sketch3.addConstraint(Sketcher.Constraint("Equal", 11, 13))
sketch3.addConstraint(Sketcher.Constraint("Equal", 9, 15))
sketch3.addConstraint(Sketcher.Constraint("Equal", 13, 17))
sketch3.addConstraint(Sketcher.Constraint("Equal", 17, 19))
sketch3.addConstraint(Sketcher.Constraint("Equal", 15, 21))
sketch3.addConstraint(Sketcher.Constraint("Equal", 19, 23))
sketch3.addConstraint(Sketcher.Constraint("Equal", 23, 25))
sketch3.addConstraint(Sketcher.Constraint("Equal", 21, 27))
sketch3.addConstraint(Sketcher.Constraint("Equal", 25, 29))
sketch3.addConstraint(Sketcher.Constraint("Equal", 29, 31))
sketch3.addConstraint(Sketcher.Constraint("Equal", 27, 33))
sketch3.addConstraint(Sketcher.Constraint("Equal", 31, 35))
sketch3.addConstraint(Sketcher.Constraint("Symmetric", 15, 3, 21, 3, -1))
sketch3.addConstraint(Sketcher.Constraint("Symmetric", 11, 3, 25, 3, -1))
sketch3.addConstraint(Sketcher.Constraint("Symmetric", 5, 3, 31, 3, -1))
sketch3.addConstraint(Sketcher.Constraint("Horizontal", 3, 3, 9, 3))
sketch3.addConstraint(Sketcher.Constraint("Horizontal", 7, 3, 11, 3))
sketch3.addConstraint(Sketcher.Constraint("Horizontal", 9, 3, 15, 3))
sketch3.addConstraint(Sketcher.Constraint("Horizontal", 21, 3, 27, 3))
sketch3.addConstraint(Sketcher.Constraint("Horizontal", 27, 3, 33, 3))
sketch3.addConstraint(Sketcher.Constraint("Equal", 6, 12))
sketch3.addConstraint(Sketcher.Constraint("Equal", 2, 16))
sketch3.addConstraint(Sketcher.Constraint("Radius", 1, 1.0))
sketch3.addConstraint(Sketcher.Constraint("Radius", 3, 3.5))
sketch3.addConstraint(Sketcher.Constraint("DistanceX", 2, 1, 2, 2, 1.0))
sketch3.addConstraint(Sketcher.Constraint("DistanceX", 6, 1, 6, 2, 5.0))
sketch3.addConstraint(Sketcher.Constraint("DistanceY", 0, 2, 0, 1, 19.0))
sketch3.addConstraint(Sketcher.Constraint("DistanceY", 4, 2, 4, 1, 1.3))
sketch3.addConstraint(Sketcher.Constraint("DistanceX", -1, 1, 5, 3, 50.0))
pocket2 = body.newObject("PartDesign::Pocket", "Pocket001")
pocket2.Profile = sketch3
pocket2.Type = "ThroughAll"

sketch4 = body.newObject("Sketcher::SketchObject", "Sketch003")
sketch4.AttachmentSupport = (doc.getObject("XZ_Plane"), [""])
sketch4.MapMode = "FlatFace"
sketch4.addGeometry(Part.LineSegment(App.Vector(10.5, 14.8, 0), App.Vector(10.5, -14.8, 0)), False)
sketch4.addGeometry(Part.LineSegment(App.Vector(10.5, -14.8, 0), App.Vector(40.5, -14.8, 0)), False)
sketch4.addGeometry(Part.LineSegment(App.Vector(40.5, -14.8, 0), App.Vector(40.5, 14.8, 0)), False)
sketch4.addGeometry(Part.LineSegment(App.Vector(40.5, 14.8, 0), App.Vector(10.5, 14.8, 0)), False)
sketch4.addConstraint(Sketcher.Constraint("Coincident", 0, 2, 1, 1))
sketch4.addConstraint(Sketcher.Constraint("Coincident", 1, 2, 2, 1))
sketch4.addConstraint(Sketcher.Constraint("Coincident", 2, 2, 3, 1))
sketch4.addConstraint(Sketcher.Constraint("Coincident", 3, 2, 0, 1))
sketch4.addConstraint(Sketcher.Constraint("Vertical", 0))
sketch4.addConstraint(Sketcher.Constraint("Horizontal", 1))
sketch4.addConstraint(Sketcher.Constraint("Vertical", 2))
sketch4.addConstraint(Sketcher.Constraint("Horizontal", 3))
sketch4.addConstraint(Sketcher.Constraint("DistanceX", 1, 1, 1, 2, 30.0))
sketch4.addConstraint(Sketcher.Constraint("DistanceY", 0, 2, 0, 1, 29.6))
sketch4.addConstraint(Sketcher.Constraint("DistanceX", -1, 1, 0, 2, 10.5))
sketch4.addConstraint(Sketcher.Constraint("DistanceY", 0, 2, -1, 1, 14.8))
pocket3 = body.newObject("PartDesign::Pocket", "Pocket002")
pocket3.Profile = sketch4
pocket3.Type = "ThroughAll"

sketch5 = body.newObject("Sketcher::SketchObject", "Sketch004")
sketch5.AttachmentSupport = (doc.getObject("XZ_Plane"), [""])
sketch5.MapMode = "FlatFace"
sketch5.addGeometry(Part.LineSegment(App.Vector(10.5, 1.5, 0), App.Vector(10.5, -1.5, 0)), False)
sketch5.addGeometry(Part.LineSegment(App.Vector(10.5, -1.5, 0), App.Vector(40.5, -1.5, 0)), False)
sketch5.addGeometry(Part.LineSegment(App.Vector(40.5, -1.5, 0), App.Vector(40.5, 1.5, 0)), False)
sketch5.addGeometry(Part.LineSegment(App.Vector(40.5, 1.5, 0), App.Vector(10.5, 1.5, 0)), False)
sketch5.addConstraint(Sketcher.Constraint("Coincident", 0, 2, 1, 1))
sketch5.addConstraint(Sketcher.Constraint("Coincident", 1, 2, 2, 1))
sketch5.addConstraint(Sketcher.Constraint("Coincident", 2, 2, 3, 1))
sketch5.addConstraint(Sketcher.Constraint("Coincident", 3, 2, 0, 1))
sketch5.addConstraint(Sketcher.Constraint("Vertical", 0))
sketch5.addConstraint(Sketcher.Constraint("Horizontal", 1))
sketch5.addConstraint(Sketcher.Constraint("Vertical", 2))
sketch5.addConstraint(Sketcher.Constraint("Horizontal", 3))
sketch5.addConstraint(Sketcher.Constraint("DistanceX", 1, 1, 1, 2, 30.0))
sketch5.addConstraint(Sketcher.Constraint("DistanceY", 0, 2, 0, 1, 3.0))
sketch5.addConstraint(Sketcher.Constraint("DistanceX", -1, 1, 0, 2, 10.5))
sketch5.addConstraint(Sketcher.Constraint("DistanceY", 0, 2, -1, 1, 1.5))
pad2 = body.newObject("PartDesign::Pad", "Pad001")
pad2.Profile = sketch5
pad2.Length = 10
pad2.Reversed = True
doc.recompute()

fillet = body.newObject("PartDesign::Fillet", "Fillet")
fillet.Base = (pad2, edges_at(pad2, [
    (40.5, 5, 14.8),
    (40.5, 5, -14.8),
    (10.5, 5, -14.8),
    (10.5, 5, 14.8),
    (40.5, 5, -1.5),
    (40.5, 5, 1.5),
    (10.5, 5, 1.5),
    (10.5, 5, -1.5),
]))
fillet.Radius = 2
doc.recompute()

chamfer = body.newObject("PartDesign::Chamfer", "Chamfer")
chamfer.Base = (fillet, edges_at(fillet, [
    (-10, 5, -18.8),
    (78.5, 5, -18.8),
    (78.5, 5, 18.8),
    (-10, 5, 18.8),
]))
chamfer.Size = 3

doc.recompute()
